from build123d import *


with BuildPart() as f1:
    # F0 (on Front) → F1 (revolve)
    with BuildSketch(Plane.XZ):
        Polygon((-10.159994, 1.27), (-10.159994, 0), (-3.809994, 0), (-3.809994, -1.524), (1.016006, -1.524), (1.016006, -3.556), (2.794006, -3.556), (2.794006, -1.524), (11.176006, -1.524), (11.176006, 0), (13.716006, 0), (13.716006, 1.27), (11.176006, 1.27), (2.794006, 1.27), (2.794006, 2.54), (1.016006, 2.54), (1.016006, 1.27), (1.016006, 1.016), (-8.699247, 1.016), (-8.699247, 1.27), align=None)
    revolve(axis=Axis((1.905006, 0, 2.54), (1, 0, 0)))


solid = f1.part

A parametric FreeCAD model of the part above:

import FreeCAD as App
import Part
import Sketcher
Q = App.Units.Quantity

doc = App.newDocument("Part")
body = doc.addObject("PartDesign::Body", "Body")

# Sketch on XZ plane
sketch1 = body.newObject("Sketcher::SketchObject", "Sketch")
sketch1.AttachmentSupport = (doc.getObject("XZ_Plane"), [""])
sketch1.MapMode = "FlatFace"
sketch1.addGeometry([
    Part.LineSegment(App.Vector(-10.16, 1.27, 0), App.Vector(-10.16, 0, 0)),  # 0
    Part.LineSegment(App.Vector(-10.16, 0, 0), App.Vector(-3.81, 0, 0)),  # 1
    Part.LineSegment(App.Vector(-3.81, 0, 0), App.Vector(-3.81, -1.52, 0)),  # 2
    Part.LineSegment(App.Vector(-3.81, -1.52, 0), App.Vector(1.02, -1.52, 0)),  # 3
    Part.LineSegment(App.Vector(1.02, -1.52, 0), App.Vector(1.02, -3.56, 0)),  # 4
    Part.LineSegment(App.Vector(1.02, -3.56, 0), App.Vector(2.79, -3.56, 0)),  # 5
    Part.LineSegment(App.Vector(2.79, -3.56, 0), App.Vector(2.79, -1.52, 0)),  # 6
    Part.LineSegment(App.Vector(2.79, -1.52, 0), App.Vector(11.18, -1.52, 0)),  # 7
    Part.LineSegment(App.Vector(11.18, -1.52, 0), App.Vector(11.18, 0, 0)),  # 8
    Part.LineSegment(App.Vector(11.18, 0, 0), App.Vector(13.72, 0, 0)),  # 9
    Part.LineSegment(App.Vector(13.72, 0, 0), App.Vector(13.72, 1.27, 0)),  # 10
    Part.LineSegment(App.Vector(13.72, 1.27, 0), App.Vector(2.79, 1.27, 0)),  # 11
    Part.LineSegment(App.Vector(2.79, 1.27, 0), App.Vector(2.79, 2.54, 0)),  # 12
    Part.LineSegment(App.Vector(2.79, 2.54, 0), App.Vector(1.02, 2.54, 0)),  # 13
    Part.LineSegment(App.Vector(1.02, 2.54, 0), App.Vector(1.02, 1.02, 0)),  # 14
    Part.LineSegment(App.Vector(1.02, 1.02, 0), App.Vector(-8.7, 1.02, 0)),  # 15
    Part.LineSegment(App.Vector(-8.7, 1.02, 0), App.Vector(-8.7, 1.27, 0)),  # 16
    Part.LineSegment(App.Vector(-8.7, 1.27, 0), App.Vector(-10.16, 1.27, 0)),  # 17
], False)
sketch1.addGeometry(Part.LineSegment(App.Vector(-10.16, 2.54, 0), App.Vector(13.72, 2.54, 0)), True)  # axis
sketch1.addConstraint([
    Sketcher.Constraint("Coincident", 0, 2, 1, 1),
    Sketcher.Constraint("Coincident", 1, 2, 2, 1),
    Sketcher.Constraint("Coincident", 2, 2, 3, 1),
    Sketcher.Constraint("Coincident", 3, 2, 4, 1),
    Sketcher.Constraint("Coincident", 4, 2, 5, 1),
    Sketcher.Constraint("Coincident", 5, 2, 6, 1),
    Sketcher.Constraint("Coincident", 6, 2, 7, 1),
    Sketcher.Constraint("Coincident", 7, 2, 8, 1),
    Sketcher.Constraint("Coincident", 8, 2, 9, 1),
    Sketcher.Constraint("Coincident", 9, 2, 10, 1),
    Sketcher.Constraint("Coincident", 10, 2, 11, 1),
    Sketcher.Constraint("Coincident", 11, 2, 12, 1),
    Sketcher.Constraint("Coincident", 12, 2, 13, 1),
    Sketcher.Constraint("Coincident", 13, 2, 14, 1),
    Sketcher.Constraint("Coincident", 14, 2, 15, 1),
    Sketcher.Constraint("Coincident", 15, 2, 16, 1),
    Sketcher.Constraint("Coincident", 16, 2, 17, 1),
    Sketcher.Constraint("Coincident", 17, 2, 0, 1),
    Sketcher.Constraint("Vertical", 0),
    Sketcher.Constraint("Horizontal", 1),
    Sketcher.Constraint("Vertical", 2),
    Sketcher.Constraint("Horizontal", 3),
    Sketcher.Constraint("Vertical", 4),
    Sketcher.Constraint("Horizontal", 5),
    Sketcher.Constraint("Vertical", 6),
    Sketcher.Constraint("Horizontal", 7),
    Sketcher.Constraint("Vertical", 8),
    Sketcher.Constraint("Horizontal", 9),
    Sketcher.Constraint("Vertical", 10),
    Sketcher.Constraint("Horizontal", 11),
    Sketcher.Constraint("Vertical", 12),
    Sketcher.Constraint("Horizontal", 13),
    Sketcher.Constraint("Vertical", 14),
    Sketcher.Constraint("Horizontal", 15),
    Sketcher.Constraint("Vertical", 16),
    Sketcher.Constraint("Horizontal", 17),
    Sketcher.Constraint("Horizontal", 18),
    Sketcher.Constraint("PointOnObject", 0, 2, -1),
    Sketcher.Constraint("PointOnObject", 8, 2, -1),
    Sketcher.Constraint("Horizontal", 3, 2, 6, 2),
    Sketcher.Constraint("Horizontal", 11, 2, 16, 2),
    Sketcher.Constraint("Horizontal", 13, 2, 18, 1),
    Sketcher.Constraint("Vertical", 6, 2, 11, 2),
    Sketcher.Constraint("Vertical", 4, 2, 13, 2),
    Sketcher.Constraint("Vertical", 17, 2, 18, 1),
    Sketcher.Constraint("Vertical", 10, 2, 18, 2),
    Sketcher.Constraint("Equal", 10, 12),
    Sketcher.Constraint("Equal", 8, 14),
    Sketcher.Constraint("DistanceX", 9, 1, 9, 2, Q("0.1 in")),
    Sketcher.Constraint("DistanceX", 1, 1, 1, 2, Q("0.25 in")),
    Sketcher.Constraint("DistanceX", 3, 1, 3, 2, Q("0.19 in")),
    Sketcher.Constraint("DistanceX", 5, 1, 5, 2, Q("0.07 in")),
    Sketcher.Constraint("DistanceX", 7, 1, 7, 2, Q("0.33 in")),
    Sketcher.Constraint("DistanceY", 0, 2, 0, 1, Q("0.05 in")),
    Sketcher.Constraint("DistanceY", 2, 2, 2, 1, Q("0.06 in")),
    Sketcher.Constraint("DistanceY", 4, 2, 4, 1, Q("0.08 in")),
    Sketcher.Constraint("DistanceX", 15, 2, 15, 1, 9.715253),
    Sketcher.Constraint("DistanceX", 0, 2, -1, 1, 10.159994),
])
revolution = body.newObject("PartDesign::Revolution", "Revolution")
revolution.Profile = sketch1
revolution.ReferenceAxis = (sketch1, ["Axis0"])
revolution.Angle = 360

doc.recompute()
